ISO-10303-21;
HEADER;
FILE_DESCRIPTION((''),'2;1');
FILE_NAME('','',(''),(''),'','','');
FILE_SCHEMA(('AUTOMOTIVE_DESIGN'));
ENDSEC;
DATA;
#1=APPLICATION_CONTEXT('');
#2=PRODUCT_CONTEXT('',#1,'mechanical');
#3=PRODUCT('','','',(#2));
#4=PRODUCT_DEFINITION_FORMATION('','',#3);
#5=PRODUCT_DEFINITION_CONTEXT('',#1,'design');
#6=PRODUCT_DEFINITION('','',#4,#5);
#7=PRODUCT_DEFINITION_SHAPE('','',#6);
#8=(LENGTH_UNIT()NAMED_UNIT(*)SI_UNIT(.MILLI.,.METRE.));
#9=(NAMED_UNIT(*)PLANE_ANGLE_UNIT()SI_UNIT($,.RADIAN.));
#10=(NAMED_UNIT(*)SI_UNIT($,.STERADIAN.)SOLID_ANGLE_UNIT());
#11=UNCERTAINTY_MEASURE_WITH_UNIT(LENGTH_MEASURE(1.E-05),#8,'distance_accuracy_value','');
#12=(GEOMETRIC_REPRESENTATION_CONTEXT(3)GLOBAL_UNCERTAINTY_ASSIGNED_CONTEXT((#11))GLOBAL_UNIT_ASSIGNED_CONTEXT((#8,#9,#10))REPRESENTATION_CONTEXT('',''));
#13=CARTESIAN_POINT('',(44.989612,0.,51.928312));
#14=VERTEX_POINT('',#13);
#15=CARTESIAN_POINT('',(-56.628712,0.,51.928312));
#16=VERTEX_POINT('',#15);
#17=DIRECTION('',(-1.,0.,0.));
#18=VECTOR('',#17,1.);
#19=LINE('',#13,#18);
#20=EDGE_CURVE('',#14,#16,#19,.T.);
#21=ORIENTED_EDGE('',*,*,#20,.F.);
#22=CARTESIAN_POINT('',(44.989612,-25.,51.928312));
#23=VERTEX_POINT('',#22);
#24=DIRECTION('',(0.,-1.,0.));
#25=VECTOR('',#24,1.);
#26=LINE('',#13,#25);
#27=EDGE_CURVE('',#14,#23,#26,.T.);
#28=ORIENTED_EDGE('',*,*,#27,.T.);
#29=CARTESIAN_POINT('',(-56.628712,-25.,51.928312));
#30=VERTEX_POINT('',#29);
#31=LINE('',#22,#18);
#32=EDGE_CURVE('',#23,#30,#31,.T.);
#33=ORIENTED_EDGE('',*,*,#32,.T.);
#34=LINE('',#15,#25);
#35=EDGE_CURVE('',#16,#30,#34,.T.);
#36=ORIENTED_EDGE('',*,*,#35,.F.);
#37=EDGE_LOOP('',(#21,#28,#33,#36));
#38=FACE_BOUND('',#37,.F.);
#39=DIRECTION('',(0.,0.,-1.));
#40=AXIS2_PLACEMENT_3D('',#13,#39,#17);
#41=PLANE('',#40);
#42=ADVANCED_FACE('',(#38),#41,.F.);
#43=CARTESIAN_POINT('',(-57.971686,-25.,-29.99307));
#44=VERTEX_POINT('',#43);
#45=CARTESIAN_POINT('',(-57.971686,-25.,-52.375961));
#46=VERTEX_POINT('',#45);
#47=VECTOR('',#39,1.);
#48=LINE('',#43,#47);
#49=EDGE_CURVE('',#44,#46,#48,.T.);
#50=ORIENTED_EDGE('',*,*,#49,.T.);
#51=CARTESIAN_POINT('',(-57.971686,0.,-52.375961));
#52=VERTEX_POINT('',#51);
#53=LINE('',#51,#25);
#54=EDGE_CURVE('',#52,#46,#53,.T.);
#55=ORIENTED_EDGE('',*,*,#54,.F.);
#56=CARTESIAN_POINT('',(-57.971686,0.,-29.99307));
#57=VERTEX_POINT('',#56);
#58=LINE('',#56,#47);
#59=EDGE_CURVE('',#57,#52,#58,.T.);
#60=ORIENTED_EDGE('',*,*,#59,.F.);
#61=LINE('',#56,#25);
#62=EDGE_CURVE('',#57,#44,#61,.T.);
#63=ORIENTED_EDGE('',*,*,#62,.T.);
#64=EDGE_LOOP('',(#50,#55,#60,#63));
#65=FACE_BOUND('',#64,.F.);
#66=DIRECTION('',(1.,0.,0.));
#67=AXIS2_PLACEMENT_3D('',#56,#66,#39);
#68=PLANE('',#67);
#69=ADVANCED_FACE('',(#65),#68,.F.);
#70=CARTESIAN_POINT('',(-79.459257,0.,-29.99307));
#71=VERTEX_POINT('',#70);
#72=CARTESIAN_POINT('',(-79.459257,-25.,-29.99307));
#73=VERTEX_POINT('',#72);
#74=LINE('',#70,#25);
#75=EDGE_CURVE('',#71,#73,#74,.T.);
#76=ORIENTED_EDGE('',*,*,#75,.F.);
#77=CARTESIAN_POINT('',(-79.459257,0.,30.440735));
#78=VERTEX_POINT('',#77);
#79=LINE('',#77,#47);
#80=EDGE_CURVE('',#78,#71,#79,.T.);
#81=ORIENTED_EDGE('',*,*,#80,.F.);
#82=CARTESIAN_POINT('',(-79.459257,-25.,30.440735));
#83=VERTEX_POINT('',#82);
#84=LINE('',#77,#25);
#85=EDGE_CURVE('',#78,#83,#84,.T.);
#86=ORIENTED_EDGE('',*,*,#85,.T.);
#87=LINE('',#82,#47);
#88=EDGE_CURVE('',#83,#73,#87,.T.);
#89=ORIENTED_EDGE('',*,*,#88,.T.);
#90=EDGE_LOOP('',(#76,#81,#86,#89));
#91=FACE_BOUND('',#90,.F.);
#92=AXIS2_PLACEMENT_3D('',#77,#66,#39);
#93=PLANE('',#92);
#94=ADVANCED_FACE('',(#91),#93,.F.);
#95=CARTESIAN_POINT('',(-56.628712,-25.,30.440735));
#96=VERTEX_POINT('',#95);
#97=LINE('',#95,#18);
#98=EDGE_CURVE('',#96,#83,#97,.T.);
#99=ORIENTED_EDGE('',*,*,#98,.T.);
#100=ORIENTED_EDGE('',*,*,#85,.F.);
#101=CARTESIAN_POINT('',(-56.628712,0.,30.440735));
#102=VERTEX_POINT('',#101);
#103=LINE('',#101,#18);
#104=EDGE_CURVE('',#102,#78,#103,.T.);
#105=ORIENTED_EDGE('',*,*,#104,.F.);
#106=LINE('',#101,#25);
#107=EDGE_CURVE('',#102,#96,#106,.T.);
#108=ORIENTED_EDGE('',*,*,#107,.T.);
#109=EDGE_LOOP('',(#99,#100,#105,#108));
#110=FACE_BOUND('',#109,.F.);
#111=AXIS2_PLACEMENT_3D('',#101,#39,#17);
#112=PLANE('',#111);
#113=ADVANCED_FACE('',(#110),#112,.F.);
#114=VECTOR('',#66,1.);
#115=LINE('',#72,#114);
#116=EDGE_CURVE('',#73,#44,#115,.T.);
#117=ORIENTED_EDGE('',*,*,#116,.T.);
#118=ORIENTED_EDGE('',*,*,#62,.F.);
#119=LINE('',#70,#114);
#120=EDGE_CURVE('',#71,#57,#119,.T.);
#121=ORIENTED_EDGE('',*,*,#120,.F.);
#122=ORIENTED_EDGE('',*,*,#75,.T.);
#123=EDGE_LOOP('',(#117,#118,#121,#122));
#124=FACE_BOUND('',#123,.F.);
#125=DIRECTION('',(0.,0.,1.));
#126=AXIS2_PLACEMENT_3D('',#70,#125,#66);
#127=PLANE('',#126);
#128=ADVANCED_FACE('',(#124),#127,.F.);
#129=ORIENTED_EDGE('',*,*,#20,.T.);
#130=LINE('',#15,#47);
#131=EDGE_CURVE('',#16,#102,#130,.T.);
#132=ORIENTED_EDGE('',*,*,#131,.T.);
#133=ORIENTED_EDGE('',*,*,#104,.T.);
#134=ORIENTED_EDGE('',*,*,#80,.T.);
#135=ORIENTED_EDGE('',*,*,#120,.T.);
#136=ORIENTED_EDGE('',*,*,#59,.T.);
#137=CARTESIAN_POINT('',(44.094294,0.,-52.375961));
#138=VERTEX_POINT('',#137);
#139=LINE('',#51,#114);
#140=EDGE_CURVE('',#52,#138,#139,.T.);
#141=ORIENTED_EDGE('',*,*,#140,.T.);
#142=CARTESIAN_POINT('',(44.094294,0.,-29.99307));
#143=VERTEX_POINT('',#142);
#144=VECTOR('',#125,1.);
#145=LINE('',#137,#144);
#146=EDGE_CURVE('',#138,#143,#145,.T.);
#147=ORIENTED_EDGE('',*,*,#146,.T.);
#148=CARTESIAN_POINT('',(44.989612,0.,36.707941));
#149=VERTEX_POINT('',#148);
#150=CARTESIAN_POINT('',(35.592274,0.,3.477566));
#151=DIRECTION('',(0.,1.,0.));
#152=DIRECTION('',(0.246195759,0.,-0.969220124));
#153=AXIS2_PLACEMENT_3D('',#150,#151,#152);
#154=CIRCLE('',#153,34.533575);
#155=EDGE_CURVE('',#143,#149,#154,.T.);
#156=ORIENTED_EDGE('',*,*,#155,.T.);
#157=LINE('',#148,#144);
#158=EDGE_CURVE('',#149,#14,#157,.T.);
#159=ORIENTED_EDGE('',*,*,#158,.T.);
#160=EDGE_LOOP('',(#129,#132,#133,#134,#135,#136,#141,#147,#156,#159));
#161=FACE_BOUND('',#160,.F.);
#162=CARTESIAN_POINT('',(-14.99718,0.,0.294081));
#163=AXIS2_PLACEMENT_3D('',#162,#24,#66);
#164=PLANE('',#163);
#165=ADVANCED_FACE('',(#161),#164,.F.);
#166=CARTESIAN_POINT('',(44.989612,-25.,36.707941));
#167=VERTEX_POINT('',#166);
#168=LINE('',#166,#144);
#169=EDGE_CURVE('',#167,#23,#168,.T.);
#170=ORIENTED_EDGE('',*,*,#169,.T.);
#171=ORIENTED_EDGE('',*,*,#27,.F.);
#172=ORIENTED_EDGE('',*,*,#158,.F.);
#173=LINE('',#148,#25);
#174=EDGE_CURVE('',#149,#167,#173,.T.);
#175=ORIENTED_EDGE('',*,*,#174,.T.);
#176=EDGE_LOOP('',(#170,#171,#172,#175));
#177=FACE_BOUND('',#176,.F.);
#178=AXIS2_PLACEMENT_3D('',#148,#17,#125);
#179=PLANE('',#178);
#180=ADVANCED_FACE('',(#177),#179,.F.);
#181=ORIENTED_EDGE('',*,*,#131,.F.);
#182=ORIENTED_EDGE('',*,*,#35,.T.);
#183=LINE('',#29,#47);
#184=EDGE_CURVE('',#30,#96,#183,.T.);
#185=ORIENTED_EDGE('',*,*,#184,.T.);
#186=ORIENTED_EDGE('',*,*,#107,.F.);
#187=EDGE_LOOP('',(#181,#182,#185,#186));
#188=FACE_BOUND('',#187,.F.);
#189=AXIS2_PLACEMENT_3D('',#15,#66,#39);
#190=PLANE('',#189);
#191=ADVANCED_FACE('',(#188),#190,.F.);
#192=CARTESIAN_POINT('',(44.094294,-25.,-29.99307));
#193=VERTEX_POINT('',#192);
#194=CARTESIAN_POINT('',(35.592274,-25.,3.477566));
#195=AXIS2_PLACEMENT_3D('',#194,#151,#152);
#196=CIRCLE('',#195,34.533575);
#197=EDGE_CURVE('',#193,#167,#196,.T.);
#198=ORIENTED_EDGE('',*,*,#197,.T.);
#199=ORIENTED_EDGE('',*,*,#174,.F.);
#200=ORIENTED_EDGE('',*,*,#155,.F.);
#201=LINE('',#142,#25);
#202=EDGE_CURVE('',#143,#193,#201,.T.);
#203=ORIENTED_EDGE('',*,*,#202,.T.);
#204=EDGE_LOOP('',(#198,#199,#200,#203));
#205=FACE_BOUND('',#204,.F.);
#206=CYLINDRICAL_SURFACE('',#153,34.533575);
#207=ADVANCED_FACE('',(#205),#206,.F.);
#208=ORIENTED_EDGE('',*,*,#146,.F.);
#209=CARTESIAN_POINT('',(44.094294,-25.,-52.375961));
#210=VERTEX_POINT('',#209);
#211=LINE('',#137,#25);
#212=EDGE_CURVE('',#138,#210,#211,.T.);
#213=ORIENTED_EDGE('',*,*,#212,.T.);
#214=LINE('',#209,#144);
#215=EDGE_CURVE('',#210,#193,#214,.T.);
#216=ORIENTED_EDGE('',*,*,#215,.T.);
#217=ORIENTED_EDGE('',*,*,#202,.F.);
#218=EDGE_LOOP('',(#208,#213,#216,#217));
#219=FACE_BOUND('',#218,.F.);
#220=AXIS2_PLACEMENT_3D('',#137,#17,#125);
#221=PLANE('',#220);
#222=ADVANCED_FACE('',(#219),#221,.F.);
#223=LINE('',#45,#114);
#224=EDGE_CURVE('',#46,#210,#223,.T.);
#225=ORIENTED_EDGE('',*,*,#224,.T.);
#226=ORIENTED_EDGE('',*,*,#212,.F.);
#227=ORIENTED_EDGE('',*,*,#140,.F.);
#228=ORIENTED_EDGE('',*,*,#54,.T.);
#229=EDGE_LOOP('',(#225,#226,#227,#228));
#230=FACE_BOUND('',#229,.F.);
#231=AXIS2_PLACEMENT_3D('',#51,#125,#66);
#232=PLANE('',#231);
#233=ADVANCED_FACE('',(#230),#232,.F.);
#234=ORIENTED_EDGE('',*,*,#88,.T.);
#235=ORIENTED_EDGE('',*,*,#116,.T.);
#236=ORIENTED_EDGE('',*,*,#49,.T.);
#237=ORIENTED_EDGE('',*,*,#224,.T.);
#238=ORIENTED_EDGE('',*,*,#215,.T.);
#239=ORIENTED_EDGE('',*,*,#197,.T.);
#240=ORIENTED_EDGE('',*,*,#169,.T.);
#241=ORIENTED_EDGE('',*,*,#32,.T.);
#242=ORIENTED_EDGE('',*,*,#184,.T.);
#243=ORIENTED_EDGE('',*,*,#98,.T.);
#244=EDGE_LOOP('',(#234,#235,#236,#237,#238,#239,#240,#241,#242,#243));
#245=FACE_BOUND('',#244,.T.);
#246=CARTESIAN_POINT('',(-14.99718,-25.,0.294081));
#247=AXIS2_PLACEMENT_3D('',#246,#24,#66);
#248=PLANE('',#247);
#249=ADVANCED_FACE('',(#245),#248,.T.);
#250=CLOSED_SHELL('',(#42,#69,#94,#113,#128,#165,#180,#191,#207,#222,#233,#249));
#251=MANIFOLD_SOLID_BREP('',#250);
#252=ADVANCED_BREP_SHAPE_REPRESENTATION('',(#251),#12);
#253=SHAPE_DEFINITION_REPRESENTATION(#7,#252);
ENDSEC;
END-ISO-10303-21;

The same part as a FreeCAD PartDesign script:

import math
import FreeCAD as App
import Part
import Sketcher

doc = App.newDocument("Part")
body = doc.addObject("PartDesign::Body", "Body")

# Sketch on XZ plane
sketch1 = doc.addObject("Sketcher::SketchObject", "Sketch")
body.addObject(sketch1)
sketch1.AttachmentSupport = (doc.XZ_Plane, [""])
sketch1.MapMode = "FlatFace"
sketch1.addGeometry([
    Part.LineSegment(App.Vector(45, 52, 0), App.Vector(-57, 52, 0)),  # 0
    Part.LineSegment(App.Vector(-57, 52, 0), App.Vector(-57, 30, 0)),  # 1
    Part.LineSegment(App.Vector(-57, 30, 0), App.Vector(-79, 30, 0)),  # 2
    Part.LineSegment(App.Vector(-79, 30, 0), App.Vector(-79, -30, 0)),  # 3
    Part.LineSegment(App.Vector(-79, -30, 0), App.Vector(-58, -30, 0)),  # 4
    Part.LineSegment(App.Vector(-58, -30, 0), App.Vector(-58, -52, 0)),  # 5
    Part.LineSegment(App.Vector(-58, -52, 0), App.Vector(44, -52, 0)),  # 6
    Part.LineSegment(App.Vector(44, -52, 0), App.Vector(44, -30, 0)),  # 7
    Part.ArcOfCircle(Part.Circle(App.Vector(36, 3, 0), App.Vector(0, 0, 1), 35), math.radians(74), math.radians(284)),  # 8
    Part.LineSegment(App.Vector(45, 37, 0), App.Vector(45, 52, 0)),  # 9
], False)
sketch1.addConstraint([
    Sketcher.Constraint("Coincident", 0, 2, 1, 1),
    Sketcher.Constraint("Coincident", 1, 2, 2, 1),
    Sketcher.Constraint("Coincident", 2, 2, 3, 1),
    Sketcher.Constraint("Coincident", 3, 2, 4, 1),
    Sketcher.Constraint("Coincident", 4, 2, 5, 1),
    Sketcher.Constraint("Coincident", 5, 2, 6, 1),
    Sketcher.Constraint("Coincident", 6, 2, 7, 1),
    Sketcher.Constraint("Coincident", 7, 2, 8, 2),
    Sketcher.Constraint("Coincident", 8, 1, 9, 1),
    Sketcher.Constraint("Coincident", 9, 2, 0, 1),
    Sketcher.Constraint("Horizontal", 0),
    Sketcher.Constraint("Vertical", 1),
    Sketcher.Constraint("Horizontal", 2),
    Sketcher.Constraint("Vertical", 3),
    Sketcher.Constraint("Horizontal", 4),
    Sketcher.Constraint("Vertical", 5),
    Sketcher.Constraint("Horizontal", 6),
    Sketcher.Constraint("Vertical", 7),
    Sketcher.Constraint("Vertical", 9),
    Sketcher.Constraint("Horizontal", 4, 2, 7, 2),
    Sketcher.Constraint("Radius", 8, 34.533575),
    Sketcher.Constraint("DistanceX", 4, 1, 4, 2, 21.487571),
    Sketcher.Constraint("DistanceX", 6, 1, 6, 2, 102.06598),
    Sketcher.Constraint("DistanceY", 5, 2, 5, 1, 22.382891),
    Sketcher.Constraint("DistanceY", 9, 1, 9, 2, 15.220371),
    Sketcher.Constraint("DistanceY", 6, 2, 8, 1, 89.083902),
    Sketcher.Constraint("DistanceX", 0, 2, 0, 1, 101.618324),
    Sketcher.Constraint("DistanceX", 2, 2, 2, 1, 22.830545),
    Sketcher.Constraint("DistanceY", 1, 2, 1, 1, 21.487577),
    Sketcher.Constraint("DistanceY", -1, 1, 0, 2, 51.928312),
    Sketcher.Constraint("DistanceX", -1, 1, 8, 1, 44.989612),
])
pad1 = doc.addObject("PartDesign::Pad", "Pad")
body.addObject(pad1)
pad1.Profile = sketch1
pad1.Length = 25

doc.recompute()
